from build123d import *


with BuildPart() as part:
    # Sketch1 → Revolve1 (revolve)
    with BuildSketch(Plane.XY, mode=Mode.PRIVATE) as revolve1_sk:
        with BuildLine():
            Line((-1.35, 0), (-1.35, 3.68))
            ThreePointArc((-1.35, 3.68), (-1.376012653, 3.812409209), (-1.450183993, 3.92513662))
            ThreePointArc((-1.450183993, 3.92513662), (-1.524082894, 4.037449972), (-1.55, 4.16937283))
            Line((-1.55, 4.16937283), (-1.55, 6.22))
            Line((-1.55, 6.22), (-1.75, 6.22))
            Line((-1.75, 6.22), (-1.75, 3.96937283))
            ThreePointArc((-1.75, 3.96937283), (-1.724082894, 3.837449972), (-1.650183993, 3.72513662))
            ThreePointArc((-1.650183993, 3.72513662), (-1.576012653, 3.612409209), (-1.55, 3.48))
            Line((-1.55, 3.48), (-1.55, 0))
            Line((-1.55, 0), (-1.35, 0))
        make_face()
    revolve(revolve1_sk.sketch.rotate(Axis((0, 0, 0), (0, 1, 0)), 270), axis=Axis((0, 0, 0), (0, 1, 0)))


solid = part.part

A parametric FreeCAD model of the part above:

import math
import FreeCAD as App
import Part
import Sketcher

doc = App.newDocument("Part")
params = doc.addObject("Spreadsheet::Sheet", "Params")
for row, (alias, value) in enumerate([
    ("sketch1_radius", "0.35 mm"),
    ("sketch1_width", "0.2 mm"),
    ("sketch1_height", "3.68 mm"),
    ("sketch1_height2", "3.48 mm"),
    ("revolution_angle", "360 deg"),
], start=1):
    params.set(f"A{row}", alias)
    params.set(f"B{row}", "=" + value)
    params.setAlias(f"B{row}", alias)

body = doc.addObject("PartDesign::Body", "Body")

sketch1 = doc.addObject("Sketcher::SketchObject", "Sketch")
body.addObject(sketch1)
sketch1.AttachmentSupport = (doc.XY_Plane, [""])
sketch1.MapMode = "FlatFace"
sketch1.addGeometry([
    Part.LineSegment(App.Vector(-1.35, 0, 0), App.Vector(-1.35, 3.68, 0)),
    Part.ArcOfCircle(Part.Circle(App.Vector(-1.7, 3.68, 0), App.Vector(0, 0, 1), 0.35), math.radians(0), math.radians(44)),
    Part.ArcOfCircle(Part.Circle(App.Vector(-1.2, 4.17, 0), App.Vector(0, 0, 1), 0.35), math.radians(-180), math.radians(-136)),
    Part.LineSegment(App.Vector(-1.55, 4.17, 0), App.Vector(-1.55, 6.22, 0)),
    Part.LineSegment(App.Vector(-1.55, 6.22, 0), App.Vector(-1.75, 6.22, 0)),
    Part.LineSegment(App.Vector(-1.75, 6.22, 0), App.Vector(-1.75, 3.97, 0)),
    Part.ArcOfCircle(Part.Circle(App.Vector(-1.4, 3.97, 0), App.Vector(0, 0, 1), 0.35), math.radians(-180), math.radians(-136)),
    Part.ArcOfCircle(Part.Circle(App.Vector(-1.9, 3.48, 0), App.Vector(0, 0, 1), 0.35), math.radians(0), math.radians(44)),
    Part.LineSegment(App.Vector(-1.55, 3.48, 0), App.Vector(-1.55, 0, 0)),
    Part.LineSegment(App.Vector(-1.55, 0, 0), App.Vector(-1.35, 0, 0)),
], False)
sketch1.addConstraint([
    Sketcher.Constraint("Tangent", 0, 2, 1, 1),
    Sketcher.Constraint("Tangent", 1, 2, 2, 2),
    Sketcher.Constraint("Tangent", 2, 1, 3, 1),
    Sketcher.Constraint("Coincident", 3, 2, 4, 1),
    Sketcher.Constraint("Coincident", 4, 2, 5, 1),
    Sketcher.Constraint("Tangent", 5, 2, 6, 1),
    Sketcher.Constraint("Tangent", 6, 2, 7, 2),
    Sketcher.Constraint("Tangent", 7, 1, 8, 1),
    Sketcher.Constraint("Coincident", 8, 2, 9, 1),
    Sketcher.Constraint("Coincident", 9, 2, 0, 1),
    Sketcher.Constraint("Vertical", 0),
    Sketcher.Constraint("Vertical", 3),
    Sketcher.Constraint("Horizontal", 4),
    Sketcher.Constraint("Vertical", 5),
    Sketcher.Constraint("Vertical", 8),
    Sketcher.Constraint("Horizontal", 9),
    Sketcher.Constraint("Equal", 2, 6),
    Sketcher.Constraint("Equal", 1, 7),
    Sketcher.Constraint("PointOnObject", 8, 2, -1),
    Sketcher.Constraint("Vertical", 3, 2, 7, 1),
    Sketcher.Constraint("Equal", 4, 9),
    Sketcher.Constraint("Radius", 1, 0.35),
    Sketcher.Constraint("DistanceX", 4, 2, 4, 1, 0.2),
    Sketcher.Constraint("DistanceY", 0, 1, 0, 2, 3.68),
    Sketcher.Constraint("DistanceY", 8, 2, 8, 1, 3.48),
    Sketcher.Constraint("DistanceX", 1, 3, -1, 1, 1.7),
    Sketcher.Constraint("DistanceY", -1, 1, 3, 2, 6.22),
    Sketcher.Constraint("Radius", 2, 0.348714),
])
sketch1.setExpression("Constraints[21]", "Params.sketch1_radius")
sketch1.setExpression("Constraints[22]", "Params.sketch1_width")
sketch1.setExpression("Constraints[23]", "Params.sketch1_height")
sketch1.setExpression("Constraints[24]", "Params.sketch1_height2")
revolution = doc.addObject("PartDesign::Revolution", "Revolution")
body.addObject(revolution)
revolution.Profile = sketch1
revolution.ReferenceAxis = (sketch1, ["V_Axis"])
revolution.setExpression("Angle", "Params.revolution_angle")

doc.recompute()
